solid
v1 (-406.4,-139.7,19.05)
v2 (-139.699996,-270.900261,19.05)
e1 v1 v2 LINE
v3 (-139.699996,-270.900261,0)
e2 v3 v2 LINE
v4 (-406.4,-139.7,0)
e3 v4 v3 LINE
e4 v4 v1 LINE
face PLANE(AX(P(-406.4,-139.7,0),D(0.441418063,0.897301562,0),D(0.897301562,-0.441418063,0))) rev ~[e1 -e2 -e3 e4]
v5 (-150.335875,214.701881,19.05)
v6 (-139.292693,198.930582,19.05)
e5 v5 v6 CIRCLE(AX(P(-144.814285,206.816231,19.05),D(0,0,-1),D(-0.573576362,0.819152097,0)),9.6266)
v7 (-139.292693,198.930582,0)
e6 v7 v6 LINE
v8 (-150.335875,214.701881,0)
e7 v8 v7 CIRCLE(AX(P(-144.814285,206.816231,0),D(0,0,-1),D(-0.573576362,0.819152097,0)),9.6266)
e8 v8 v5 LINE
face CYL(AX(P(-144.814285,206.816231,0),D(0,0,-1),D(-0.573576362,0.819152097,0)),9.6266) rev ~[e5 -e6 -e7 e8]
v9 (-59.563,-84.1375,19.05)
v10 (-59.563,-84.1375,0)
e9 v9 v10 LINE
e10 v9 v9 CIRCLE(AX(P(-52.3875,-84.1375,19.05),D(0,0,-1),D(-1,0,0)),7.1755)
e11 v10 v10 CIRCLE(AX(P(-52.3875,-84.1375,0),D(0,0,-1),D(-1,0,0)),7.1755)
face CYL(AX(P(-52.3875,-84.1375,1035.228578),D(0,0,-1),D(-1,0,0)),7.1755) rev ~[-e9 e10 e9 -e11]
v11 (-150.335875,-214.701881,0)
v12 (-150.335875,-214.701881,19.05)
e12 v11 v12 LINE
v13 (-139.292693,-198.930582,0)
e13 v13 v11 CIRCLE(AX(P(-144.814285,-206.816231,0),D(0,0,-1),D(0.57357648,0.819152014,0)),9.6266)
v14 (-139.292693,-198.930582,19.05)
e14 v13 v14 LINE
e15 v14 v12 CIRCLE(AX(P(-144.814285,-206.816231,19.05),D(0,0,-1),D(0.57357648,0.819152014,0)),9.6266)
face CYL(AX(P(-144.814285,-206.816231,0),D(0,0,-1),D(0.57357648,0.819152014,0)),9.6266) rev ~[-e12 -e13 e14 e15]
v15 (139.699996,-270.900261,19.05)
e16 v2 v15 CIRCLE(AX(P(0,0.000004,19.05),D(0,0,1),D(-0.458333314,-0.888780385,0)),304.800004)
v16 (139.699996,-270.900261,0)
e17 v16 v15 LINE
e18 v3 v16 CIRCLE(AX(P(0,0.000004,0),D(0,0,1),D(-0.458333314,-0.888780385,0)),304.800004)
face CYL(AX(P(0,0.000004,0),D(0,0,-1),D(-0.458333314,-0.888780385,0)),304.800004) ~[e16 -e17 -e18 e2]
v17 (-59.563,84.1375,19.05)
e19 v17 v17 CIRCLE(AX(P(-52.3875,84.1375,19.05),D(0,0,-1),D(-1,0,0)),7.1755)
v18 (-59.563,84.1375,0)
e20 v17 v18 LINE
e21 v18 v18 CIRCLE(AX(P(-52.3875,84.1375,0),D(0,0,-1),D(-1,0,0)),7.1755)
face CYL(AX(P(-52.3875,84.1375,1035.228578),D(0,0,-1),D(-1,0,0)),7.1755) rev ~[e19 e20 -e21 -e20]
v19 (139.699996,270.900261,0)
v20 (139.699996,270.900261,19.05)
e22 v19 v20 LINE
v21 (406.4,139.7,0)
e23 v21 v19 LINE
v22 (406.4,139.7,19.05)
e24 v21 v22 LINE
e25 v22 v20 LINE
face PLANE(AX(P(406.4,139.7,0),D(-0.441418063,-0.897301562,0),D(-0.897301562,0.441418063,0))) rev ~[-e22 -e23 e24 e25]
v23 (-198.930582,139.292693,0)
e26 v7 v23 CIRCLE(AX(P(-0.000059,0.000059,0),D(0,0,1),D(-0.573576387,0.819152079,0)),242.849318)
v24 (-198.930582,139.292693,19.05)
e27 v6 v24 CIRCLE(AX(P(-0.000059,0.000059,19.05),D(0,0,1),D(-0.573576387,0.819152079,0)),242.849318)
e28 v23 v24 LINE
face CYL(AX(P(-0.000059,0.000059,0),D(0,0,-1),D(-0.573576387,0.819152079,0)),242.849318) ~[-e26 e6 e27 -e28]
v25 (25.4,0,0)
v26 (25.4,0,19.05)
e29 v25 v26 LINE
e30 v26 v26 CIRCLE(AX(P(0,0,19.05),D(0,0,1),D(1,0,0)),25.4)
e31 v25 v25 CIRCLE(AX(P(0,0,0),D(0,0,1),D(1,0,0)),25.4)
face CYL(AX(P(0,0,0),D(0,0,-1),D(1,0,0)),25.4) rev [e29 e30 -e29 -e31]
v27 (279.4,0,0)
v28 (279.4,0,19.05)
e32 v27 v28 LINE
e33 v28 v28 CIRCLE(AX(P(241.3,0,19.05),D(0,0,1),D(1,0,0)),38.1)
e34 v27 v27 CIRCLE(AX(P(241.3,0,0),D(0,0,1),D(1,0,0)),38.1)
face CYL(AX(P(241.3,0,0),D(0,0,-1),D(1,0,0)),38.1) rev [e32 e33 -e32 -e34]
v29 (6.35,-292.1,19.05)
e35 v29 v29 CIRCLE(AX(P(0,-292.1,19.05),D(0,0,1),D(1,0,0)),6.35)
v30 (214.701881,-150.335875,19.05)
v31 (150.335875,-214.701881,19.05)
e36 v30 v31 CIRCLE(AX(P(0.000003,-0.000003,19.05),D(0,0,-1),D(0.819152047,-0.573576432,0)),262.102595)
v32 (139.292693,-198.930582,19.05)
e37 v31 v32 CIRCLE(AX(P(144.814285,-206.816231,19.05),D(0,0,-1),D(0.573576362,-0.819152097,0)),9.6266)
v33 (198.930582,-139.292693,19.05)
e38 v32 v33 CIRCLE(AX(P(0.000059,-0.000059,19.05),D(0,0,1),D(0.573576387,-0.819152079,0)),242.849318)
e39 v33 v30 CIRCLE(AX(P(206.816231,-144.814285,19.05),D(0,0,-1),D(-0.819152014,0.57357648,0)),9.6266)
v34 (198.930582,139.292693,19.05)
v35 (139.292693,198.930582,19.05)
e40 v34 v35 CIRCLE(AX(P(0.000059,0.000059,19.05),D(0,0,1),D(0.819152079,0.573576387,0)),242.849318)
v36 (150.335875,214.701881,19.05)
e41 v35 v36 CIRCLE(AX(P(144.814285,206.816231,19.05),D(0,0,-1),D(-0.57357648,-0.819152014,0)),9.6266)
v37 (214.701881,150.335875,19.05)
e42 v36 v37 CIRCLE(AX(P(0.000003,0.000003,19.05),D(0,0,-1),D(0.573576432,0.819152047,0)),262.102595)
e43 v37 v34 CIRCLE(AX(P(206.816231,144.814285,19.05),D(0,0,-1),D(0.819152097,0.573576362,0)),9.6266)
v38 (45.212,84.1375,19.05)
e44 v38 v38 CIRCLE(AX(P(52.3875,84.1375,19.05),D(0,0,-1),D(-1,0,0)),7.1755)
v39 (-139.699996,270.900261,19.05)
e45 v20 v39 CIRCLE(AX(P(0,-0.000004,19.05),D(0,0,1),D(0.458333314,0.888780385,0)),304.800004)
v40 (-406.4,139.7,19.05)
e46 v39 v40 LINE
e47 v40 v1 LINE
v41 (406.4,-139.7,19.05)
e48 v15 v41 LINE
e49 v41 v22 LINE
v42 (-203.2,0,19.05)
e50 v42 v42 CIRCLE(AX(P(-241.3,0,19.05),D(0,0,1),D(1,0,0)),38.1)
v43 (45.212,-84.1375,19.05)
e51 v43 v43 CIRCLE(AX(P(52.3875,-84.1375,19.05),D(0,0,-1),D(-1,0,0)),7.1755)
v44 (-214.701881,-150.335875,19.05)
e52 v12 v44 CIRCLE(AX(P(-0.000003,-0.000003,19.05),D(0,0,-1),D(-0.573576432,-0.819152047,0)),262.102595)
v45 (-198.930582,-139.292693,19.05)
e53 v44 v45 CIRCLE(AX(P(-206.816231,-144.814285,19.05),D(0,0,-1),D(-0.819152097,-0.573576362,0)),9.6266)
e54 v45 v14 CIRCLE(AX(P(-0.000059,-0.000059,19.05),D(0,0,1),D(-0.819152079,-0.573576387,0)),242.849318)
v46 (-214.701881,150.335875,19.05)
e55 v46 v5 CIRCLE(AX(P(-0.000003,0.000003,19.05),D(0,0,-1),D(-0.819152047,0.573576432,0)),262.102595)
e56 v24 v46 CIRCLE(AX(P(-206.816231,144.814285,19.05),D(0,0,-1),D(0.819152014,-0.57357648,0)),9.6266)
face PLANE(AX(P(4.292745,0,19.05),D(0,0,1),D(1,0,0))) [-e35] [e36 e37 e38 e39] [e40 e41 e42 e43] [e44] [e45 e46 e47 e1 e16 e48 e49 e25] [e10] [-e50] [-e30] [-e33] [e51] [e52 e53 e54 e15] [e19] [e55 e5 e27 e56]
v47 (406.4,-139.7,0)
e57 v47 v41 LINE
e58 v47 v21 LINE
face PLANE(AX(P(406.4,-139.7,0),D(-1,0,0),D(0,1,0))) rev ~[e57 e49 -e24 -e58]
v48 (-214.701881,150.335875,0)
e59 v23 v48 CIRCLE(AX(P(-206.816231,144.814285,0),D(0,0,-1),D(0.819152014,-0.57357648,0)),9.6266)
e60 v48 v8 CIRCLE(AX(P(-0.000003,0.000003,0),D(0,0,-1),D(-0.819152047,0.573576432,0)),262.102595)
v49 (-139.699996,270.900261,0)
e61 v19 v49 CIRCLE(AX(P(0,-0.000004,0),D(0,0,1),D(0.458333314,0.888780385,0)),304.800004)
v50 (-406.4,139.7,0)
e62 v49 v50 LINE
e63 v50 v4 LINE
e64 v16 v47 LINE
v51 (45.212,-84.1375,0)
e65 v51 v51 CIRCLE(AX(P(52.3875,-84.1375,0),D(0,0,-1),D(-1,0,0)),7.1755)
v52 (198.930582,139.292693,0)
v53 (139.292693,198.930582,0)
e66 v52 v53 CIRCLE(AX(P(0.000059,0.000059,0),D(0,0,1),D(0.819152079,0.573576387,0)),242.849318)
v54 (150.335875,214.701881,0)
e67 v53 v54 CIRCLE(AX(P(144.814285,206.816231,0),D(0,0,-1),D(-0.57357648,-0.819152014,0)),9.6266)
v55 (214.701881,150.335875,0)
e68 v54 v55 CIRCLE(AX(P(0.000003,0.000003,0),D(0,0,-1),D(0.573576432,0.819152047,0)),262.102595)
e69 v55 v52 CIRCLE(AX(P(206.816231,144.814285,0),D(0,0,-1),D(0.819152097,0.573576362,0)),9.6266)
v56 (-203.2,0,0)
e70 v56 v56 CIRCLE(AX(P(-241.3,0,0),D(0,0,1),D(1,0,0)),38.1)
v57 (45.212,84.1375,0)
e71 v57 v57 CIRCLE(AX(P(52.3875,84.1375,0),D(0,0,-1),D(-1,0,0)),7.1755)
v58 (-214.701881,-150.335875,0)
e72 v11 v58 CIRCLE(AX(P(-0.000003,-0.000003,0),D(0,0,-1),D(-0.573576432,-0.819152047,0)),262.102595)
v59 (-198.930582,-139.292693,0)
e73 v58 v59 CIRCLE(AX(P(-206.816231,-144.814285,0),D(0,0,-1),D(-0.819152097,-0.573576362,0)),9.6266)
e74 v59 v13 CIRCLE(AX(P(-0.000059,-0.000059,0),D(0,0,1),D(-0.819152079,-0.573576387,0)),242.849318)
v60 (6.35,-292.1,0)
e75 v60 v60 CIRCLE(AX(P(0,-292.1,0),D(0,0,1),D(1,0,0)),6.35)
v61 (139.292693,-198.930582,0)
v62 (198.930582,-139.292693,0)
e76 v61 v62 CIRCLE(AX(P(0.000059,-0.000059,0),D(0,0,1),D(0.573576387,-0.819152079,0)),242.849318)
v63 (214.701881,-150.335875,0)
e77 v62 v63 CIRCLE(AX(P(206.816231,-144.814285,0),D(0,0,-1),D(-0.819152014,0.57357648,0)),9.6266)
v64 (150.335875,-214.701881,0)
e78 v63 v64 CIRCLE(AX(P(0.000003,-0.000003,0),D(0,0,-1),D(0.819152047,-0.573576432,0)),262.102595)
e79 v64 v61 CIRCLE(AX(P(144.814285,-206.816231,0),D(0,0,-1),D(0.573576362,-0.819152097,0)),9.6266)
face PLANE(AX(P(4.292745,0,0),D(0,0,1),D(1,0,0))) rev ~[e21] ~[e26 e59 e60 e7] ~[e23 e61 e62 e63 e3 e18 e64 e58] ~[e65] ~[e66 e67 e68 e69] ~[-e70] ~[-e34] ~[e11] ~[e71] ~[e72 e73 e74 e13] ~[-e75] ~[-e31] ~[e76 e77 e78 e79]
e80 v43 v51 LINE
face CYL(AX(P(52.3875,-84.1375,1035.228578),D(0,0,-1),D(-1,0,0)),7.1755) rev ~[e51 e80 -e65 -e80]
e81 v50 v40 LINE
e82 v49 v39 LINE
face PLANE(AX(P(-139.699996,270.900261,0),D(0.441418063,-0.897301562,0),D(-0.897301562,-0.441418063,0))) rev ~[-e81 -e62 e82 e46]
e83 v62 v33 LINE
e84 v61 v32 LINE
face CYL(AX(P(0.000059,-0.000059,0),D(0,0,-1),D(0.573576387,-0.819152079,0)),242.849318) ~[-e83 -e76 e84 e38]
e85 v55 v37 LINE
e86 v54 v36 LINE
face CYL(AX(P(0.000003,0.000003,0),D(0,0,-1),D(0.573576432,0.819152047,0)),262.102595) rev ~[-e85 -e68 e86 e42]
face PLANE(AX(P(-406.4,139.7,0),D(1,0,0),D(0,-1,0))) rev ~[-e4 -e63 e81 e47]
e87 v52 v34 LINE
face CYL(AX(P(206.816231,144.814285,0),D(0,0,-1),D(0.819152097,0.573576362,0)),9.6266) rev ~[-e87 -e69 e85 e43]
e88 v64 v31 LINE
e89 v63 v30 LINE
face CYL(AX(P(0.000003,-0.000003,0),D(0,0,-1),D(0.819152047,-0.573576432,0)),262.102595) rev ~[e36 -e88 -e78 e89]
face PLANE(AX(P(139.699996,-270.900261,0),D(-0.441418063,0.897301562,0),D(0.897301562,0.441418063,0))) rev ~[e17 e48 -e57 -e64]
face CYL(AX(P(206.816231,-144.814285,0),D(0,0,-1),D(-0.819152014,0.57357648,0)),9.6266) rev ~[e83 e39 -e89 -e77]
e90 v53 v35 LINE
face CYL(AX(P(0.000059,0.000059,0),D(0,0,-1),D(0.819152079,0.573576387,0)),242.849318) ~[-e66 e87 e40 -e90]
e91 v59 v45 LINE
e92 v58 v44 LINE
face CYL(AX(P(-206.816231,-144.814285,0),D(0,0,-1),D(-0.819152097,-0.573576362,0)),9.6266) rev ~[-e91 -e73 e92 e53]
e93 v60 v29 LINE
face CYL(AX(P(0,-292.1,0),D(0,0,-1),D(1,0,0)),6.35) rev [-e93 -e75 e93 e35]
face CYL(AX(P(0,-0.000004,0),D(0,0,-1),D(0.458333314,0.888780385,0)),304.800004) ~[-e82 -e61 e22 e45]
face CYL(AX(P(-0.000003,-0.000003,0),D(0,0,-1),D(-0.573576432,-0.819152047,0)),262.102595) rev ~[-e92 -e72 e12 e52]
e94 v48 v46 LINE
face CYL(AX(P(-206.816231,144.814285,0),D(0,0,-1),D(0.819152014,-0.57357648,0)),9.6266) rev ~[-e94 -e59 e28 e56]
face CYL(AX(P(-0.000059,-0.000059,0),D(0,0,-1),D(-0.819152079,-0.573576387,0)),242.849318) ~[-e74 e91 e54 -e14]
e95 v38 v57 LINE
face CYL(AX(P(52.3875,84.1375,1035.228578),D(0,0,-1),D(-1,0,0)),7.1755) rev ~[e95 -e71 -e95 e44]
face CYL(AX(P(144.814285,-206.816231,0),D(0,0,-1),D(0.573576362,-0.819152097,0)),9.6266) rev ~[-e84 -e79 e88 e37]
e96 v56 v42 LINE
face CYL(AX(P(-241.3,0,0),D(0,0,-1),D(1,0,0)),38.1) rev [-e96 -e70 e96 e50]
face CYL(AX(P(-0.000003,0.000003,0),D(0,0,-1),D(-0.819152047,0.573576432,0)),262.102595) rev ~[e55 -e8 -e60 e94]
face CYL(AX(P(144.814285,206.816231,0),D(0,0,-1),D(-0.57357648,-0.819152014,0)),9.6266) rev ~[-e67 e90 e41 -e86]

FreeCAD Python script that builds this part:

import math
import FreeCAD as App
import Part
import Sketcher

V = App.Vector
Q = App.Units.Quantity

doc = App.newDocument("Part")
body = doc.addObject("PartDesign::Body", "Body")

# Sketch on XY plane
sketch1 = body.newObject("Sketcher::SketchObject", "Sketch")
sketch1.AttachmentSupport = (doc.getObject("XY_Plane"), [""])
sketch1.MapMode = "FlatFace"
sketch1.addGeometry(Part.ArcOfCircle(Part.Circle(V(0, 0, 0), V(0, 0, 1), 305), math.radians(63), math.radians(117)), False)
sketch1.addGeometry(Part.LineSegment(V(-140, 271, 0), V(-406, 140, 0)), False)
sketch1.addGeometry(Part.LineSegment(V(-406, 140, 0), V(-406, -140, 0)), False)
sketch1.addGeometry(Part.LineSegment(V(-406, -140, 0), V(-140, -271, 0)), False)
sketch1.addGeometry(Part.ArcOfCircle(Part.Circle(V(0, 0, 0), V(0, 0, 1), 305), math.radians(-117), math.radians(-63)), False)
sketch1.addGeometry(Part.LineSegment(V(140, -271, 0), V(406, -140, 0)), False)
sketch1.addGeometry(Part.LineSegment(V(406, -140, 0), V(406, 140, 0)), False)
sketch1.addGeometry(Part.LineSegment(V(406, 140, 0), V(140, 271, 0)), False)
sketch1.addGeometry(Part.ArcOfCircle(Part.Circle(V(0, 0, 0), V(0, 0, 1), 262), math.radians(-145), math.radians(-125)), False)
sketch1.addGeometry(Part.ArcOfCircle(Part.Circle(V(-207, -145, 0), V(0, 0, 1), 10), math.radians(35), math.radians(215)), False)
sketch1.addGeometry(Part.ArcOfCircle(Part.Circle(V(0, 0, 0), V(0, 0, 1), 243), math.radians(-145), math.radians(-125)), False)
sketch1.addGeometry(Part.ArcOfCircle(Part.Circle(V(-145, -207, 0), V(0, 0, 1), 10), math.radians(-125), math.radians(55)), False)
sketch1.addGeometry(Part.Circle(V(0, -292, 0), V(0, 0, 1), 6), False)
sketch1.addGeometry(Part.ArcOfCircle(Part.Circle(V(0, 0, 0), V(0, 0, 1), 243), math.radians(-55), math.radians(-35)), False)
sketch1.addGeometry(Part.ArcOfCircle(Part.Circle(V(207, -145, 0), V(0, 0, 1), 10), math.radians(-35), math.radians(145)), False)
sketch1.addGeometry(Part.ArcOfCircle(Part.Circle(V(0, 0, 0), V(0, 0, 1), 262), math.radians(-55), math.radians(-35)), False)
sketch1.addGeometry(Part.ArcOfCircle(Part.Circle(V(145, -207, 0), V(0, 0, 1), 10), math.radians(125), math.radians(305)), False)
sketch1.addGeometry(Part.Circle(V(-241, 0, 0), V(0, 0, 1), 38), False)
sketch1.addGeometry(Part.ArcOfCircle(Part.Circle(V(0, 0, 0), V(0, 0, 1), 243), math.radians(125), math.radians(145)), False)
sketch1.addGeometry(Part.ArcOfCircle(Part.Circle(V(-207, 145, 0), V(0, 0, 1), 10), math.radians(145), math.radians(325)), False)
sketch1.addGeometry(Part.ArcOfCircle(Part.Circle(V(0, 0, 0), V(0, 0, 1), 262), math.radians(125), math.radians(145)), False)
sketch1.addGeometry(Part.ArcOfCircle(Part.Circle(V(-145, 207, 0), V(0, 0, 1), 10), math.radians(-55), math.radians(125)), False)
sketch1.addGeometry(Part.Circle(V(0, 0, 0), V(0, 0, 1), 25), False)
sketch1.addGeometry(Part.Circle(V(241, 0, 0), V(0, 0, 1), 38), False)
sketch1.addGeometry(Part.ArcOfCircle(Part.Circle(V(0, 0, 0), V(0, 0, 1), 243), math.radians(35), math.radians(55)), False)
sketch1.addGeometry(Part.ArcOfCircle(Part.Circle(V(145, 207, 0), V(0, 0, 1), 10), math.radians(55), math.radians(235)), False)
sketch1.addGeometry(Part.ArcOfCircle(Part.Circle(V(0, 0, 0), V(0, 0, 1), 262), math.radians(35), math.radians(55)), False)
sketch1.addGeometry(Part.ArcOfCircle(Part.Circle(V(207, 145, 0), V(0, 0, 1), 10), math.radians(-145), math.radians(35)), False)
sketch1.addConstraint(Sketcher.Constraint("Coincident", 0, 2, 1, 1))
sketch1.addConstraint(Sketcher.Constraint("Coincident", 1, 2, 2, 1))
sketch1.addConstraint(Sketcher.Constraint("Coincident", 2, 2, 3, 1))
sketch1.addConstraint(Sketcher.Constraint("Coincident", 3, 2, 4, 1))
sketch1.addConstraint(Sketcher.Constraint("Coincident", 4, 2, 5, 1))
sketch1.addConstraint(Sketcher.Constraint("Coincident", 5, 2, 6, 1))
sketch1.addConstraint(Sketcher.Constraint("Coincident", 6, 2, 7, 1))
sketch1.addConstraint(Sketcher.Constraint("Coincident", 7, 2, 0, 1))
sketch1.addConstraint(Sketcher.Constraint("Tangent", 8, 1, 9, 2))
sketch1.addConstraint(Sketcher.Constraint("Tangent", 9, 1, 10, 1))
sketch1.addConstraint(Sketcher.Constraint("Tangent", 10, 2, 11, 2))
sketch1.addConstraint(Sketcher.Constraint("Tangent", 11, 1, 8, 2))
sketch1.addConstraint(Sketcher.Constraint("Tangent", 13, 2, 14, 2))
sketch1.addConstraint(Sketcher.Constraint("Tangent", 14, 1, 15, 2))
sketch1.addConstraint(Sketcher.Constraint("Tangent", 15, 1, 16, 2))
sketch1.addConstraint(Sketcher.Constraint("Tangent", 16, 1, 13, 1))
sketch1.addConstraint(Sketcher.Constraint("Tangent", 18, 2, 19, 2))
sketch1.addConstraint(Sketcher.Constraint("Tangent", 19, 1, 20, 2))
sketch1.addConstraint(Sketcher.Constraint("Tangent", 20, 1, 21, 2))
sketch1.addConstraint(Sketcher.Constraint("Tangent", 21, 1, 18, 1))
sketch1.addConstraint(Sketcher.Constraint("Tangent", 24, 2, 25, 2))
sketch1.addConstraint(Sketcher.Constraint("Tangent", 25, 1, 26, 2))
sketch1.addConstraint(Sketcher.Constraint("Tangent", 26, 1, 27, 2))
sketch1.addConstraint(Sketcher.Constraint("Tangent", 27, 1, 24, 1))
sketch1.addConstraint(Sketcher.Constraint("Vertical", 2))
sketch1.addConstraint(Sketcher.Constraint("Vertical", 6))
sketch1.addConstraint(Sketcher.Constraint("Coincident", 0, 3, -1, 1))
sketch1.addConstraint(Sketcher.Constraint("Coincident", 4, 3, -1, 1))
sketch1.addConstraint(Sketcher.Constraint("Coincident", 8, 3, -1, 1))
sketch1.addConstraint(Sketcher.Constraint("Coincident", 15, 3, -1, 1))
sketch1.addConstraint(Sketcher.Constraint("Coincident", 20, 3, -1, 1))
sketch1.addConstraint(Sketcher.Constraint("Coincident", 22, 3, -1, 1))
sketch1.addConstraint(Sketcher.Constraint("Coincident", 26, 3, -1, 1))
sketch1.addConstraint(Sketcher.Constraint("Equal", 0, 4))
sketch1.addConstraint(Sketcher.Constraint("Equal", 9, 11))
sketch1.addConstraint(Sketcher.Constraint("Equal", 10, 13))
sketch1.addConstraint(Sketcher.Constraint("Equal", 11, 14))
sketch1.addConstraint(Sketcher.Constraint("Equal", 8, 15))
sketch1.addConstraint(Sketcher.Constraint("Equal", 14, 16))
sketch1.addConstraint(Sketcher.Constraint("Equal", 13, 18))
sketch1.addConstraint(Sketcher.Constraint("Equal", 16, 19))
sketch1.addConstraint(Sketcher.Constraint("Equal", 15, 20))
sketch1.addConstraint(Sketcher.Constraint("Equal", 19, 21))
sketch1.addConstraint(Sketcher.Constraint("Equal", 17, 23))
sketch1.addConstraint(Sketcher.Constraint("Equal", 18, 24))
sketch1.addConstraint(Sketcher.Constraint("Equal", 21, 25))
sketch1.addConstraint(Sketcher.Constraint("Equal", 20, 26))
sketch1.addConstraint(Sketcher.Constraint("Equal", 25, 27))
sketch1.addConstraint(Sketcher.Constraint("Symmetric", 17, 3, 23, 3, -1, 1))
sketch1.addConstraint(Sketcher.Constraint("Symmetric", 1, 2, 5, 2, -1, 1))
sketch1.addConstraint(Sketcher.Constraint("PointOnObject", 12, 3, -2))
sketch1.addConstraint(Sketcher.Constraint("PointOnObject", 17, 3, -1))
sketch1.addConstraint(Sketcher.Constraint("Parallel", 1, 5))
sketch1.addConstraint(Sketcher.Constraint("Parallel", 3, 7))
sketch1.addConstraint(Sketcher.Constraint("Horizontal", 9, 3, 14, 3))
sketch1.addConstraint(Sketcher.Constraint("Horizontal", 11, 3, 16, 3))
sketch1.addConstraint(Sketcher.Constraint("Horizontal", 21, 3, 25, 3))
sketch1.addConstraint(Sketcher.Constraint("Horizontal", 19, 3, 27, 3))
sketch1.addConstraint(Sketcher.Constraint("Horizontal", 3, 2, 4, 2))
sketch1.addConstraint(Sketcher.Constraint("Horizontal", 2, 2, 5, 2))
sketch1.addConstraint(Sketcher.Constraint("Horizontal", 1, 2, 6, 2))
sketch1.addConstraint(Sketcher.Constraint("Vertical", 9, 3, 19, 3))
sketch1.addConstraint(Sketcher.Constraint("Vertical", 11, 3, 21, 3))
sketch1.addConstraint(Sketcher.Constraint("Diameter", 17, Q("3 in")))
sketch1.addConstraint(Sketcher.Constraint("Diameter", 22, Q("2 in")))
sketch1.addConstraint(Sketcher.Constraint("Radius", 0, Q("12.0000002 in")))
sketch1.addConstraint(Sketcher.Constraint("Diameter", 12, Q("0.5 in")))
sketch1.addConstraint(Sketcher.Constraint("DistanceY", 2, 2, 2, 1, Q("11 in")))
sketch1.addConstraint(Sketcher.Constraint("DistanceX", 1, 2, -1, 1, Q("16 in")))
sketch1.addConstraint(Sketcher.Constraint("Radius", 8, Q("10.3189998 in")))
sketch1.addConstraint(Sketcher.Constraint("Radius", 9, Q("0.379 in")))
sketch1.addConstraint(Sketcher.Constraint("DistanceX", 17, 3, 0, 2, Q("4.0000002 in")))
sketch1.addConstraint(Sketcher.Constraint("DistanceY", 12, 3, -1, 1, Q("11.5 in")))
sketch1.addConstraint(Sketcher.Constraint("DistanceX", 17, 3, -1, 1, Q("9.5 in")))
sketch1.addConstraint(Sketcher.Constraint("Radius", 10, 242.849318))
sketch1.addConstraint(Sketcher.Constraint("DistanceX", 9, 3, -1, 1, 206.816231))
sketch1.addConstraint(Sketcher.Constraint("DistanceY", 11, 3, -1, 1, 206.816231))
pad1 = body.newObject("PartDesign::Pad", "Pad")
pad1.Profile = sketch1
pad1.Length = Q("0.75 in")

# Sketch on XY plane
sketch2 = body.newObject("Sketcher::SketchObject", "Sketch001")
sketch2.AttachmentSupport = (doc.getObject("XY_Plane"), [""])
sketch2.MapMode = "FlatFace"
sketch2.AttachmentOffset = App.Placement(V(0, 0, 0.75 * 25.4), App.Rotation())
sketch2.addGeometry(Part.Circle(V(-52, 84, 0), V(0, 0, 1), 7), False)
sketch2.addGeometry(Part.Circle(V(-52, -84, 0), V(0, 0, 1), 7), False)
sketch2.addGeometry(Part.Circle(V(52, -84, 0), V(0, 0, 1), 7), False)
sketch2.addGeometry(Part.Circle(V(52, 84, 0), V(0, 0, 1), 7), False)
sketch2.addConstraint(Sketcher.Constraint("Equal", 0, 1))
sketch2.addConstraint(Sketcher.Constraint("Equal", 1, 2))
sketch2.addConstraint(Sketcher.Constraint("Equal", 2, 3))
sketch2.addConstraint(Sketcher.Constraint("Symmetric", 0, 3, 2, 3, -1, 1))
sketch2.addConstraint(Sketcher.Constraint("Symmetric", 1, 3, 3, 3, -1, 1))
sketch2.addConstraint(Sketcher.Constraint("Symmetric", 1, 3, 2, 3, -2))
sketch2.addConstraint(Sketcher.Constraint("Diameter", 0, Q("0.565 in")))
sketch2.addConstraint(Sketcher.Constraint("DistanceX", 0, 3, -1, 1, Q("2.0625 in")))
sketch2.addConstraint(Sketcher.Constraint("DistanceY", -1, 1, 0, 3, Q("3.3125 in")))
doc.recompute()
hole = body.newObject("PartDesign::Hole", "Hole")
hole.Profile = sketch2
hole.ThreadType = "None"
hole.Diameter = Q("0.565 in")
hole.DepthType = "ThroughAll"

doc.recompute()
